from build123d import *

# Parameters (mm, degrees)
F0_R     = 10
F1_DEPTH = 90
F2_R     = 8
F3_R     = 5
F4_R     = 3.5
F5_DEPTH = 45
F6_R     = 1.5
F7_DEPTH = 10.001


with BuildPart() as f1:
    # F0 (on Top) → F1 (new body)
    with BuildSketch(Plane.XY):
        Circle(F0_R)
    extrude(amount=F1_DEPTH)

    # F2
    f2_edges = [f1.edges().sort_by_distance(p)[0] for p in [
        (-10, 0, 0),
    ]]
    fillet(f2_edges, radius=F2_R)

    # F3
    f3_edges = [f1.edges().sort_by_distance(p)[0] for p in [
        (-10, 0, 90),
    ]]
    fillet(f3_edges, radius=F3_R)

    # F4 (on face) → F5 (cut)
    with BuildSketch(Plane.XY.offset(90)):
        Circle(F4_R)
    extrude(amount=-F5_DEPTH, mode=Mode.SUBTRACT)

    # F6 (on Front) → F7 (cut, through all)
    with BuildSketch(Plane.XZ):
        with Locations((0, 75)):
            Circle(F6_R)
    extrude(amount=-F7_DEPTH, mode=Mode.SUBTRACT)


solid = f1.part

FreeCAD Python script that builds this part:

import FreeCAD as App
import Part
import Sketcher

V = App.Vector


def edges_at(feature, points):
    """Names of the edges that pass closest to the given points."""
    edges = feature.Shape.Edges
    near = lambda p: min(range(len(edges)), key=lambda i: edges[i].distToShape(Part.Vertex(*p))[0])
    return sorted({f"Edge{near(p) + 1}" for p in points})

doc = App.newDocument("Part")
body = doc.addObject("PartDesign::Body", "Body")

sketch1 = body.newObject("Sketcher::SketchObject", "Sketch")
sketch1.AttachmentSupport = (doc.getObject("XY_Plane"), [""])
sketch1.MapMode = "FlatFace"
sketch1.addGeometry(Part.Circle(V(0, 0, 0), V(0, 0, 1), 10), False)
sketch1.addConstraint(Sketcher.Constraint("Coincident", 0, 3, -1, 1))
sketch1.addConstraint(Sketcher.Constraint("Diameter", 0, 20.0))
pad1 = body.newObject("PartDesign::Pad", "Pad")
pad1.Profile = sketch1
pad1.Length = 90
doc.recompute()

fillet = body.newObject("PartDesign::Fillet", "Fillet")
fillet.Base = (pad1, edges_at(pad1, [(-10, 0, 0)]))
fillet.Radius = 8
doc.recompute()

fillet2 = body.newObject("PartDesign::Fillet", "Fillet001")
fillet2.Base = (fillet, edges_at(fillet, [(-10, 0, 90)]))
fillet2.Radius = 5

sketch2 = body.newObject("Sketcher::SketchObject", "Sketch001")
sketch2.AttachmentSupport = (doc.getObject("XY_Plane"), [""])
sketch2.MapMode = "FlatFace"
sketch2.AttachmentOffset = App.Placement(V(0, 0, 90), App.Rotation())
sketch2.addGeometry(Part.Circle(V(0, 0, 0), V(0, 0, 1), 3.5), False)
sketch2.addConstraint(Sketcher.Constraint("Coincident", 0, 3, -1, 1))
sketch2.addConstraint(Sketcher.Constraint("Diameter", 0, 7.0))
pocket1 = body.newObject("PartDesign::Pocket", "Pocket")
pocket1.Profile = sketch2
pocket1.Length = 45

sketch3 = body.newObject("Sketcher::SketchObject", "Sketch002")
sketch3.AttachmentSupport = (doc.getObject("XZ_Plane"), [""])
sketch3.MapMode = "FlatFace"
sketch3.addGeometry(Part.Circle(V(0, 75, 0), V(0, 0, 1), 1.5), False)
sketch3.addConstraint(Sketcher.Constraint("PointOnObject", 0, 3, -2))
sketch3.addConstraint(Sketcher.Constraint("Diameter", 0, 3.0))
sketch3.addConstraint(Sketcher.Constraint("DistanceY", -1, 1, 0, 3, 75.0))
pocket2 = body.newObject("PartDesign::Pocket", "Pocket001")
pocket2.Profile = sketch3
pocket2.Type = "ThroughAll"

doc.recompute()
